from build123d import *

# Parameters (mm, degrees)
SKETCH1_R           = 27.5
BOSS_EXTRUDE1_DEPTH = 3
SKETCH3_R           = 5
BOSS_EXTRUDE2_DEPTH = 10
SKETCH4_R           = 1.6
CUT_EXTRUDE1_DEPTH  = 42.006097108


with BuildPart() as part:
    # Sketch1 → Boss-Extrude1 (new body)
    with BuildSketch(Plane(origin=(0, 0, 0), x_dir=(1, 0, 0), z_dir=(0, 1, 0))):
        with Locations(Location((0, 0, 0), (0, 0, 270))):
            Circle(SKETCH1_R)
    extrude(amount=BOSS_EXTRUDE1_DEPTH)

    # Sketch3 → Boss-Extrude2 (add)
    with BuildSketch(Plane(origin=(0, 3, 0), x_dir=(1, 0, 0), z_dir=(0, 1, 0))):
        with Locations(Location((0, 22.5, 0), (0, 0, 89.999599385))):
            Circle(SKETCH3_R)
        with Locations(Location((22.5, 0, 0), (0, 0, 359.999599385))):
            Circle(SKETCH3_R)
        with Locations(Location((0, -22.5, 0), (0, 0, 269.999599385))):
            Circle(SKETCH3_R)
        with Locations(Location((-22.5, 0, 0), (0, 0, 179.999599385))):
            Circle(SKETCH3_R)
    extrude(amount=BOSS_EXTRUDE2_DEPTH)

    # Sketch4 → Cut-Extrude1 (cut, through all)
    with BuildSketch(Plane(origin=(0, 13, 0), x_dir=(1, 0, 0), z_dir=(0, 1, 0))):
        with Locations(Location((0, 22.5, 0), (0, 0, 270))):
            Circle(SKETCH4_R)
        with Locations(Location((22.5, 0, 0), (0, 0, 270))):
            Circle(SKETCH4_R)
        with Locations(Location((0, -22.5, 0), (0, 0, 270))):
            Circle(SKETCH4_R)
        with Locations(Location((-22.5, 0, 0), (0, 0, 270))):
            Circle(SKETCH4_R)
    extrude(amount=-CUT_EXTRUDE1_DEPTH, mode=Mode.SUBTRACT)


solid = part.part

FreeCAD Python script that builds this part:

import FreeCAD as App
import Part
import Sketcher

V = App.Vector

doc = App.newDocument("Part")
body = doc.addObject("PartDesign::Body", "Body")

sketch1 = body.newObject("Sketcher::SketchObject", "Sketch")
sketch1.AttachmentSupport = (doc.getObject("XZ_Plane"), [""])
sketch1.MapMode = "FlatFace"
sketch1.addGeometry(Part.Circle(V(0, 0, 0), V(0, 0, 1), 27.5), False)
sketch1.addConstraint([
    Sketcher.Constraint("Coincident", 0, 3, -1, 1),
    Sketcher.Constraint("Diameter", 0, 55.0),
])
pad1 = body.newObject("PartDesign::Pad", "Pad")
pad1.Profile = sketch1
pad1.Length = 3
pad1.Reversed = True

sketch2 = body.newObject("Sketcher::SketchObject", "Sketch001")
sketch2.AttachmentSupport = (doc.getObject("XZ_Plane"), [""])
sketch2.MapMode = "FlatFace"
sketch2.AttachmentOffset = App.Placement(V(0, 0, -3), App.Rotation())
sketch2.addGeometry([
    Part.Circle(V(0, -22.5, 0), V(0, 0, 1), 5),
    Part.Circle(V(22.5, 0, 0), V(0, 0, 1), 5),
    Part.Circle(V(0, 22.5, 0), V(0, 0, 1), 5),
    Part.Circle(V(-22.5, 0, 0), V(0, 0, 1), 5),
], False)
sketch2.addConstraint([
    Sketcher.Constraint("Equal", 0, 1),
    Sketcher.Constraint("Equal", 1, 2),
    Sketcher.Constraint("Equal", 2, 3),
    Sketcher.Constraint("Symmetric", 0, 3, 2, 3, -1, 1),
    Sketcher.Constraint("Symmetric", 1, 3, 3, 3, -1, 1),
    Sketcher.Constraint("PointOnObject", 0, 3, -2),
    Sketcher.Constraint("PointOnObject", 1, 3, -1),
    Sketcher.Constraint("Diameter", 0, 10.0),
    Sketcher.Constraint("DistanceY", 0, 3, 2, 3, 45.0),
    Sketcher.Constraint("DistanceX", 3, 3, 1, 3, 45.0),
])
pad2 = body.newObject("PartDesign::Pad", "Pad001")
pad2.Profile = sketch2
pad2.Length = 10
pad2.Reversed = True

sketch3 = body.newObject("Sketcher::SketchObject", "Sketch002")
sketch3.AttachmentSupport = (doc.getObject("XZ_Plane"), [""])
sketch3.MapMode = "FlatFace"
sketch3.AttachmentOffset = App.Placement(V(0, 0, -13), App.Rotation())
sketch3.addGeometry([
    Part.Circle(V(0, -22.5, 0), V(0, 0, 1), 1.6),
    Part.Circle(V(22.5, 0, 0), V(0, 0, 1), 1.6),
    Part.Circle(V(0, 22.5, 0), V(0, 0, 1), 1.6),
    Part.Circle(V(-22.5, 0, 0), V(0, 0, 1), 1.6),
], False)
sketch3.addConstraint([
    Sketcher.Constraint("Equal", 0, 1),
    Sketcher.Constraint("Equal", 1, 2),
    Sketcher.Constraint("Equal", 2, 3),
    Sketcher.Constraint("Symmetric", 0, 3, 2, 3, -1, 1),
    Sketcher.Constraint("Symmetric", 1, 3, 3, 3, -1, 1),
    Sketcher.Constraint("PointOnObject", 0, 3, -2),
    Sketcher.Constraint("PointOnObject", 1, 3, -1),
    Sketcher.Constraint("Diameter", 0, 3.2),
    Sketcher.Constraint("DistanceY", 0, 3, 2, 3, 45.0),
    Sketcher.Constraint("DistanceX", 3, 3, 1, 3, 45.0),
])
pocket1 = body.newObject("PartDesign::Pocket", "Pocket")
pocket1.Profile = sketch3
pocket1.Type = "ThroughAll"
pocket1.Reversed = True

doc.recompute()
